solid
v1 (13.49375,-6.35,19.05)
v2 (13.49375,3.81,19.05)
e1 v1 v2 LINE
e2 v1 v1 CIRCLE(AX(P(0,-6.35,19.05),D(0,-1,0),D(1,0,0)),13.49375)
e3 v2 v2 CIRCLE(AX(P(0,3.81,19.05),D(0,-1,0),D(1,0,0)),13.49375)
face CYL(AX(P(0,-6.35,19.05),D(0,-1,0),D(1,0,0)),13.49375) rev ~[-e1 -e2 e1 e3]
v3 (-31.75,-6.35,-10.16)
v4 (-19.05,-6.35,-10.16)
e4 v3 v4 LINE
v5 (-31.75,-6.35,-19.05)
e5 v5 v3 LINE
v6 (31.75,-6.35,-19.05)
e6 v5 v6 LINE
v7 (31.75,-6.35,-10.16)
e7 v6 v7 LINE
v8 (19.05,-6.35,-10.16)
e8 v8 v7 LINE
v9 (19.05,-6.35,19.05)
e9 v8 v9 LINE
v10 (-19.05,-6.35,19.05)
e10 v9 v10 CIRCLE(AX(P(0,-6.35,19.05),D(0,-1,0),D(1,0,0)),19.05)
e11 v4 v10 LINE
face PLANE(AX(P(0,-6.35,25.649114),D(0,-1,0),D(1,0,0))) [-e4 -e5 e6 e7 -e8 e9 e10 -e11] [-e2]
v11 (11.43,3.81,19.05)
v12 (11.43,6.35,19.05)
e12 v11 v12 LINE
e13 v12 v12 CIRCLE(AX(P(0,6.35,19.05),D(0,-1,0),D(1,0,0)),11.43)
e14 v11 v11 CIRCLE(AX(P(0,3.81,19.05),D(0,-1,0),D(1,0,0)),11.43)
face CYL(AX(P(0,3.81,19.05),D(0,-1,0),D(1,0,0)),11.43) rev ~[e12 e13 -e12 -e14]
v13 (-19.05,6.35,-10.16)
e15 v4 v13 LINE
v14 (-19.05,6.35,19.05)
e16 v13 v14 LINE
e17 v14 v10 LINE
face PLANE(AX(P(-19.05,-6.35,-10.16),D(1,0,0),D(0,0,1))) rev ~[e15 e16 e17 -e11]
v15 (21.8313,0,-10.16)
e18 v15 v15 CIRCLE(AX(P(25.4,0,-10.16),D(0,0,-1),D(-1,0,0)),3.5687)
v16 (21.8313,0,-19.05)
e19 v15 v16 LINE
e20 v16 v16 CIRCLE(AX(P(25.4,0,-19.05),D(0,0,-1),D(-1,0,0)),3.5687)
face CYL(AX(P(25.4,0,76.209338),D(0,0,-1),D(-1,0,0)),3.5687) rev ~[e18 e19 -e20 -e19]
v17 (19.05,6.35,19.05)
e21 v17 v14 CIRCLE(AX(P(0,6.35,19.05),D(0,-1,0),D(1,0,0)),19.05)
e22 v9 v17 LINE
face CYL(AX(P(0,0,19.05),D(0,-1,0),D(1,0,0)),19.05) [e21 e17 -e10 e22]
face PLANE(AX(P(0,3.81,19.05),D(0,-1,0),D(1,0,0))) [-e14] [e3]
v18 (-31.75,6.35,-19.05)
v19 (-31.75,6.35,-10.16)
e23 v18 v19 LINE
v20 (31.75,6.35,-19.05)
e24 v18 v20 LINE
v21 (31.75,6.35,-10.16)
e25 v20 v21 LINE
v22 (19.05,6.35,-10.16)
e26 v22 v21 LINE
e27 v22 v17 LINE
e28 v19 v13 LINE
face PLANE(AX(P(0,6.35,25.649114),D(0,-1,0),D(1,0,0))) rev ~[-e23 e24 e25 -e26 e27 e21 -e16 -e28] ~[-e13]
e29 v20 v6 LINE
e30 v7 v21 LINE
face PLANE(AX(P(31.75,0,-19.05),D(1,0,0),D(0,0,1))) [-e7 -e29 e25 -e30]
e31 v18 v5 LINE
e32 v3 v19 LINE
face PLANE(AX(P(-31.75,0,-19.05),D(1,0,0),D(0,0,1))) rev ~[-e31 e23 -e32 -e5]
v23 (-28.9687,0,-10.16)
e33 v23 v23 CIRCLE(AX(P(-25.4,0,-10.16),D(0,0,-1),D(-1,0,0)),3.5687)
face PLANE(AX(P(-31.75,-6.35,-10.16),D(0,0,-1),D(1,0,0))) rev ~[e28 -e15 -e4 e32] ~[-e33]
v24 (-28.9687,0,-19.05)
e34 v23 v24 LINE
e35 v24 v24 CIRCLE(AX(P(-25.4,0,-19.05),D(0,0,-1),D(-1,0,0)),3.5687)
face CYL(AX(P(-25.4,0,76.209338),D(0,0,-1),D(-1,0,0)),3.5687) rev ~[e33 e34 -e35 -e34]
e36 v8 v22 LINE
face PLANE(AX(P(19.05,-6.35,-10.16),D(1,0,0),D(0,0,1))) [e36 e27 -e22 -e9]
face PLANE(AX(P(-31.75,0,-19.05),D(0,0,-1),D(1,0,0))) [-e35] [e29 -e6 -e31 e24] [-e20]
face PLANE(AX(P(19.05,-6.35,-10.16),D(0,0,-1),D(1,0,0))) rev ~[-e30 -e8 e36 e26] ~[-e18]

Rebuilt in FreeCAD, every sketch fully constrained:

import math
import FreeCAD as App
import Part
import Sketcher
Q = App.Units.Quantity

doc = App.newDocument("Part")
body = doc.addObject("PartDesign::Body", "Body")

sketch1 = doc.addObject("Sketcher::SketchObject", "Sketch")
body.addObject(sketch1)
sketch1.AttachmentSupport = (doc.XZ_Plane, [""])
sketch1.MapMode = "FlatFace"
sketch1.addGeometry(Part.LineSegment(App.Vector(-32, 19, 0), App.Vector(-32, -19, 0)), False)
sketch1.addGeometry(Part.LineSegment(App.Vector(-32, -19, 0), App.Vector(32, -19, 0)), False)
sketch1.addGeometry(Part.LineSegment(App.Vector(32, -19, 0), App.Vector(32, 19, 0)), False)
sketch1.addGeometry(Part.LineSegment(App.Vector(32, 19, 0), App.Vector(-32, 19, 0)), False)
sketch1.addConstraint(Sketcher.Constraint("Coincident", 0, 2, 1, 1))
sketch1.addConstraint(Sketcher.Constraint("Coincident", 1, 2, 2, 1))
sketch1.addConstraint(Sketcher.Constraint("Coincident", 2, 2, 3, 1))
sketch1.addConstraint(Sketcher.Constraint("Coincident", 3, 2, 0, 1))
sketch1.addConstraint(Sketcher.Constraint("Vertical", 0))
sketch1.addConstraint(Sketcher.Constraint("Horizontal", 1))
sketch1.addConstraint(Sketcher.Constraint("Vertical", 2))
sketch1.addConstraint(Sketcher.Constraint("Horizontal", 3))
sketch1.addConstraint(Sketcher.Constraint("Symmetric", 0, 2, 2, 2, -1, 1))
sketch1.addConstraint(Sketcher.Constraint("DistanceX", 1, 1, 1, 2, Q("2.5 in")))
sketch1.addConstraint(Sketcher.Constraint("DistanceY", 0, 2, 0, 1, Q("1.5 in")))
pad1 = doc.addObject("PartDesign::Pad", "Pad")
body.addObject(pad1)
pad1.Profile = sketch1
pad1.Length = Q("0.5 in")
pad1.Midplane = True

sketch2 = doc.addObject("Sketcher::SketchObject", "Sketch001")
body.addObject(sketch2)
sketch2.AttachmentSupport = (doc.XZ_Plane, [""])
sketch2.MapMode = "FlatFace"
sketch2.AttachmentOffset = App.Placement(App.Vector(0, 0, 0.25 * 25.4), App.Rotation())
sketch2.addGeometry(Part.LineSegment(App.Vector(-32, 19, 0), App.Vector(-32, -10, 0)), False)
sketch2.addGeometry(Part.LineSegment(App.Vector(-32, -10, 0), App.Vector(-19, -10, 0)), False)
sketch2.addGeometry(Part.LineSegment(App.Vector(-19, -10, 0), App.Vector(-19, 19, 0)), False)
sketch2.addGeometry(Part.LineSegment(App.Vector(-19, 19, 0), App.Vector(-32, 19, 0)), False)
sketch2.addGeometry(Part.LineSegment(App.Vector(19, 19, 0), App.Vector(19, -10, 0)), False)
sketch2.addGeometry(Part.LineSegment(App.Vector(19, -10, 0), App.Vector(32, -10, 0)), False)
sketch2.addGeometry(Part.LineSegment(App.Vector(32, -10, 0), App.Vector(32, 19, 0)), False)
sketch2.addGeometry(Part.LineSegment(App.Vector(32, 19, 0), App.Vector(19, 19, 0)), False)
sketch2.addConstraint(Sketcher.Constraint("Coincident", 0, 2, 1, 1))
sketch2.addConstraint(Sketcher.Constraint("Coincident", 1, 2, 2, 1))
sketch2.addConstraint(Sketcher.Constraint("Coincident", 2, 2, 3, 1))
sketch2.addConstraint(Sketcher.Constraint("Coincident", 3, 2, 0, 1))
sketch2.addConstraint(Sketcher.Constraint("Coincident", 4, 2, 5, 1))
sketch2.addConstraint(Sketcher.Constraint("Coincident", 5, 2, 6, 1))
sketch2.addConstraint(Sketcher.Constraint("Coincident", 6, 2, 7, 1))
sketch2.addConstraint(Sketcher.Constraint("Coincident", 7, 2, 4, 1))
sketch2.addConstraint(Sketcher.Constraint("Vertical", 0))
sketch2.addConstraint(Sketcher.Constraint("Horizontal", 1))
sketch2.addConstraint(Sketcher.Constraint("Vertical", 2))
sketch2.addConstraint(Sketcher.Constraint("Horizontal", 3))
sketch2.addConstraint(Sketcher.Constraint("Vertical", 4))
sketch2.addConstraint(Sketcher.Constraint("Horizontal", 5))
sketch2.addConstraint(Sketcher.Constraint("Vertical", 6))
sketch2.addConstraint(Sketcher.Constraint("Horizontal", 7))
sketch2.addConstraint(Sketcher.Constraint("Symmetric", 1, 2, 4, 2, -2))
sketch2.addConstraint(Sketcher.Constraint("Symmetric", 3, 2, 6, 2, -2))
sketch2.addConstraint(Sketcher.Constraint("DistanceX", 1, 1, 1, 2, Q("0.5 in")))
sketch2.addConstraint(Sketcher.Constraint("DistanceX", 0, 2, 4, 2, Q("2 in")))
sketch2.addConstraint(Sketcher.Constraint("DistanceY", 0, 2, 0, 1, Q("1.15 in")))
sketch2.addConstraint(Sketcher.Constraint("DistanceY", 0, 2, -1, 1, Q("0.4 in")))
pocket1 = doc.addObject("PartDesign::Pocket", "Pocket")
body.addObject(pocket1)
pocket1.Profile = sketch2
pocket1.Type = "ThroughAll"

sketch3 = doc.addObject("Sketcher::SketchObject", "Sketch002")
body.addObject(sketch3)
sketch3.AttachmentSupport = (doc.XZ_Plane, [""])
sketch3.MapMode = "FlatFace"
sketch3.addGeometry(Part.LineSegment(App.Vector(-19, 19, 0), App.Vector(19, 19, 0)), False)
sketch3.addGeometry(Part.ArcOfCircle(Part.Circle(App.Vector(0, 19, 0), App.Vector(0, 0, 1), 19), math.radians(0), math.radians(180)), False)
sketch3.addConstraint(Sketcher.Constraint("Coincident", 0, 1, 1, 2))
sketch3.addConstraint(Sketcher.Constraint("Coincident", 1, 1, 0, 2))
sketch3.addConstraint(Sketcher.Constraint("Horizontal", 0))
sketch3.addConstraint(Sketcher.Constraint("PointOnObject", 1, 3, -2))
sketch3.addConstraint(Sketcher.Constraint("Horizontal", 1, 3, 0, 1))
sketch3.addConstraint(Sketcher.Constraint("Radius", 1, Q("0.75 in")))
sketch3.addConstraint(Sketcher.Constraint("DistanceY", -1, 1, 1, 3, Q("0.75 in")))
pad2 = doc.addObject("PartDesign::Pad", "Pad001")
body.addObject(pad2)
pad2.Profile = sketch3
pad2.Type = "TwoLengths"
pad2.Length = Q("0.25 in")
pad2.Length2 = Q("0.25 in")

sketch4 = doc.addObject("Sketcher::SketchObject", "Sketch003")
body.addObject(sketch4)
sketch4.AttachmentSupport = (doc.XZ_Plane, [""])
sketch4.MapMode = "FlatFace"
sketch4.AttachmentOffset = App.Placement(App.Vector(0, 0, 0.25 * 25.4), App.Rotation())
sketch4.addGeometry(Part.Circle(App.Vector(0, 19, 0), App.Vector(0, 0, 1), 13), False)
sketch4.addConstraint(Sketcher.Constraint("PointOnObject", 0, 3, -2))
sketch4.addConstraint(Sketcher.Constraint("Diameter", 0, Q("1.0625 in")))
sketch4.addConstraint(Sketcher.Constraint("DistanceY", -1, 1, 0, 3, Q("0.75 in")))
pocket2 = doc.addObject("PartDesign::Pocket", "Pocket001")
body.addObject(pocket2)
pocket2.Profile = sketch4
pocket2.Length = Q("0.4 in")

sketch5 = doc.addObject("Sketcher::SketchObject", "Sketch004")
body.addObject(sketch5)
sketch5.AttachmentSupport = (doc.XZ_Plane, [""])
sketch5.MapMode = "FlatFace"
sketch5.AttachmentOffset = App.Placement(App.Vector(0, 0, -0.15 * 25.4), App.Rotation())
sketch5.addGeometry(Part.Circle(App.Vector(0, 19, 0), App.Vector(0, 0, 1), 11), False)
sketch5.addConstraint(Sketcher.Constraint("PointOnObject", 0, 3, -2))
sketch5.addConstraint(Sketcher.Constraint("Diameter", 0, Q("0.9 in")))
sketch5.addConstraint(Sketcher.Constraint("DistanceY", -1, 1, 0, 3, Q("0.75 in")))
pocket3 = doc.addObject("PartDesign::Pocket", "Pocket002")
body.addObject(pocket3)
pocket3.Profile = sketch5
pocket3.Length = Q("1 in")

sketch6 = doc.addObject("Sketcher::SketchObject", "Sketch005")
body.addObject(sketch6)
sketch6.AttachmentSupport = (doc.XY_Plane, [""])
sketch6.MapMode = "FlatFace"
sketch6.AttachmentOffset = App.Placement(App.Vector(0, 0, -0.4 * 25.4), App.Rotation())
sketch6.addGeometry(Part.Circle(App.Vector(-25.4, 0, 0), App.Vector(0, 0, 1), 3.6), False)
sketch6.addGeometry(Part.Circle(App.Vector(25.4, 0, 0), App.Vector(0, 0, 1), 3.6), False)
sketch6.addConstraint(Sketcher.Constraint("Equal", 0, 1))
sketch6.addConstraint(Sketcher.Constraint("Symmetric", 0, 3, 1, 3, -1, 1))
sketch6.addConstraint(Sketcher.Constraint("PointOnObject", 0, 3, -1))
sketch6.addConstraint(Sketcher.Constraint("Diameter", 0, Q("0.281 in")))
sketch6.addConstraint(Sketcher.Constraint("DistanceX", 0, 3, -1, 1, Q("1 in")))
doc.recompute()
hole = doc.addObject("PartDesign::Hole", "Hole")
body.addObject(hole)
hole.Profile = sketch6
hole.ThreadType = "None"
hole.Diameter = Q("0.281 in")
hole.DepthType = "ThroughAll"

doc.recompute()
